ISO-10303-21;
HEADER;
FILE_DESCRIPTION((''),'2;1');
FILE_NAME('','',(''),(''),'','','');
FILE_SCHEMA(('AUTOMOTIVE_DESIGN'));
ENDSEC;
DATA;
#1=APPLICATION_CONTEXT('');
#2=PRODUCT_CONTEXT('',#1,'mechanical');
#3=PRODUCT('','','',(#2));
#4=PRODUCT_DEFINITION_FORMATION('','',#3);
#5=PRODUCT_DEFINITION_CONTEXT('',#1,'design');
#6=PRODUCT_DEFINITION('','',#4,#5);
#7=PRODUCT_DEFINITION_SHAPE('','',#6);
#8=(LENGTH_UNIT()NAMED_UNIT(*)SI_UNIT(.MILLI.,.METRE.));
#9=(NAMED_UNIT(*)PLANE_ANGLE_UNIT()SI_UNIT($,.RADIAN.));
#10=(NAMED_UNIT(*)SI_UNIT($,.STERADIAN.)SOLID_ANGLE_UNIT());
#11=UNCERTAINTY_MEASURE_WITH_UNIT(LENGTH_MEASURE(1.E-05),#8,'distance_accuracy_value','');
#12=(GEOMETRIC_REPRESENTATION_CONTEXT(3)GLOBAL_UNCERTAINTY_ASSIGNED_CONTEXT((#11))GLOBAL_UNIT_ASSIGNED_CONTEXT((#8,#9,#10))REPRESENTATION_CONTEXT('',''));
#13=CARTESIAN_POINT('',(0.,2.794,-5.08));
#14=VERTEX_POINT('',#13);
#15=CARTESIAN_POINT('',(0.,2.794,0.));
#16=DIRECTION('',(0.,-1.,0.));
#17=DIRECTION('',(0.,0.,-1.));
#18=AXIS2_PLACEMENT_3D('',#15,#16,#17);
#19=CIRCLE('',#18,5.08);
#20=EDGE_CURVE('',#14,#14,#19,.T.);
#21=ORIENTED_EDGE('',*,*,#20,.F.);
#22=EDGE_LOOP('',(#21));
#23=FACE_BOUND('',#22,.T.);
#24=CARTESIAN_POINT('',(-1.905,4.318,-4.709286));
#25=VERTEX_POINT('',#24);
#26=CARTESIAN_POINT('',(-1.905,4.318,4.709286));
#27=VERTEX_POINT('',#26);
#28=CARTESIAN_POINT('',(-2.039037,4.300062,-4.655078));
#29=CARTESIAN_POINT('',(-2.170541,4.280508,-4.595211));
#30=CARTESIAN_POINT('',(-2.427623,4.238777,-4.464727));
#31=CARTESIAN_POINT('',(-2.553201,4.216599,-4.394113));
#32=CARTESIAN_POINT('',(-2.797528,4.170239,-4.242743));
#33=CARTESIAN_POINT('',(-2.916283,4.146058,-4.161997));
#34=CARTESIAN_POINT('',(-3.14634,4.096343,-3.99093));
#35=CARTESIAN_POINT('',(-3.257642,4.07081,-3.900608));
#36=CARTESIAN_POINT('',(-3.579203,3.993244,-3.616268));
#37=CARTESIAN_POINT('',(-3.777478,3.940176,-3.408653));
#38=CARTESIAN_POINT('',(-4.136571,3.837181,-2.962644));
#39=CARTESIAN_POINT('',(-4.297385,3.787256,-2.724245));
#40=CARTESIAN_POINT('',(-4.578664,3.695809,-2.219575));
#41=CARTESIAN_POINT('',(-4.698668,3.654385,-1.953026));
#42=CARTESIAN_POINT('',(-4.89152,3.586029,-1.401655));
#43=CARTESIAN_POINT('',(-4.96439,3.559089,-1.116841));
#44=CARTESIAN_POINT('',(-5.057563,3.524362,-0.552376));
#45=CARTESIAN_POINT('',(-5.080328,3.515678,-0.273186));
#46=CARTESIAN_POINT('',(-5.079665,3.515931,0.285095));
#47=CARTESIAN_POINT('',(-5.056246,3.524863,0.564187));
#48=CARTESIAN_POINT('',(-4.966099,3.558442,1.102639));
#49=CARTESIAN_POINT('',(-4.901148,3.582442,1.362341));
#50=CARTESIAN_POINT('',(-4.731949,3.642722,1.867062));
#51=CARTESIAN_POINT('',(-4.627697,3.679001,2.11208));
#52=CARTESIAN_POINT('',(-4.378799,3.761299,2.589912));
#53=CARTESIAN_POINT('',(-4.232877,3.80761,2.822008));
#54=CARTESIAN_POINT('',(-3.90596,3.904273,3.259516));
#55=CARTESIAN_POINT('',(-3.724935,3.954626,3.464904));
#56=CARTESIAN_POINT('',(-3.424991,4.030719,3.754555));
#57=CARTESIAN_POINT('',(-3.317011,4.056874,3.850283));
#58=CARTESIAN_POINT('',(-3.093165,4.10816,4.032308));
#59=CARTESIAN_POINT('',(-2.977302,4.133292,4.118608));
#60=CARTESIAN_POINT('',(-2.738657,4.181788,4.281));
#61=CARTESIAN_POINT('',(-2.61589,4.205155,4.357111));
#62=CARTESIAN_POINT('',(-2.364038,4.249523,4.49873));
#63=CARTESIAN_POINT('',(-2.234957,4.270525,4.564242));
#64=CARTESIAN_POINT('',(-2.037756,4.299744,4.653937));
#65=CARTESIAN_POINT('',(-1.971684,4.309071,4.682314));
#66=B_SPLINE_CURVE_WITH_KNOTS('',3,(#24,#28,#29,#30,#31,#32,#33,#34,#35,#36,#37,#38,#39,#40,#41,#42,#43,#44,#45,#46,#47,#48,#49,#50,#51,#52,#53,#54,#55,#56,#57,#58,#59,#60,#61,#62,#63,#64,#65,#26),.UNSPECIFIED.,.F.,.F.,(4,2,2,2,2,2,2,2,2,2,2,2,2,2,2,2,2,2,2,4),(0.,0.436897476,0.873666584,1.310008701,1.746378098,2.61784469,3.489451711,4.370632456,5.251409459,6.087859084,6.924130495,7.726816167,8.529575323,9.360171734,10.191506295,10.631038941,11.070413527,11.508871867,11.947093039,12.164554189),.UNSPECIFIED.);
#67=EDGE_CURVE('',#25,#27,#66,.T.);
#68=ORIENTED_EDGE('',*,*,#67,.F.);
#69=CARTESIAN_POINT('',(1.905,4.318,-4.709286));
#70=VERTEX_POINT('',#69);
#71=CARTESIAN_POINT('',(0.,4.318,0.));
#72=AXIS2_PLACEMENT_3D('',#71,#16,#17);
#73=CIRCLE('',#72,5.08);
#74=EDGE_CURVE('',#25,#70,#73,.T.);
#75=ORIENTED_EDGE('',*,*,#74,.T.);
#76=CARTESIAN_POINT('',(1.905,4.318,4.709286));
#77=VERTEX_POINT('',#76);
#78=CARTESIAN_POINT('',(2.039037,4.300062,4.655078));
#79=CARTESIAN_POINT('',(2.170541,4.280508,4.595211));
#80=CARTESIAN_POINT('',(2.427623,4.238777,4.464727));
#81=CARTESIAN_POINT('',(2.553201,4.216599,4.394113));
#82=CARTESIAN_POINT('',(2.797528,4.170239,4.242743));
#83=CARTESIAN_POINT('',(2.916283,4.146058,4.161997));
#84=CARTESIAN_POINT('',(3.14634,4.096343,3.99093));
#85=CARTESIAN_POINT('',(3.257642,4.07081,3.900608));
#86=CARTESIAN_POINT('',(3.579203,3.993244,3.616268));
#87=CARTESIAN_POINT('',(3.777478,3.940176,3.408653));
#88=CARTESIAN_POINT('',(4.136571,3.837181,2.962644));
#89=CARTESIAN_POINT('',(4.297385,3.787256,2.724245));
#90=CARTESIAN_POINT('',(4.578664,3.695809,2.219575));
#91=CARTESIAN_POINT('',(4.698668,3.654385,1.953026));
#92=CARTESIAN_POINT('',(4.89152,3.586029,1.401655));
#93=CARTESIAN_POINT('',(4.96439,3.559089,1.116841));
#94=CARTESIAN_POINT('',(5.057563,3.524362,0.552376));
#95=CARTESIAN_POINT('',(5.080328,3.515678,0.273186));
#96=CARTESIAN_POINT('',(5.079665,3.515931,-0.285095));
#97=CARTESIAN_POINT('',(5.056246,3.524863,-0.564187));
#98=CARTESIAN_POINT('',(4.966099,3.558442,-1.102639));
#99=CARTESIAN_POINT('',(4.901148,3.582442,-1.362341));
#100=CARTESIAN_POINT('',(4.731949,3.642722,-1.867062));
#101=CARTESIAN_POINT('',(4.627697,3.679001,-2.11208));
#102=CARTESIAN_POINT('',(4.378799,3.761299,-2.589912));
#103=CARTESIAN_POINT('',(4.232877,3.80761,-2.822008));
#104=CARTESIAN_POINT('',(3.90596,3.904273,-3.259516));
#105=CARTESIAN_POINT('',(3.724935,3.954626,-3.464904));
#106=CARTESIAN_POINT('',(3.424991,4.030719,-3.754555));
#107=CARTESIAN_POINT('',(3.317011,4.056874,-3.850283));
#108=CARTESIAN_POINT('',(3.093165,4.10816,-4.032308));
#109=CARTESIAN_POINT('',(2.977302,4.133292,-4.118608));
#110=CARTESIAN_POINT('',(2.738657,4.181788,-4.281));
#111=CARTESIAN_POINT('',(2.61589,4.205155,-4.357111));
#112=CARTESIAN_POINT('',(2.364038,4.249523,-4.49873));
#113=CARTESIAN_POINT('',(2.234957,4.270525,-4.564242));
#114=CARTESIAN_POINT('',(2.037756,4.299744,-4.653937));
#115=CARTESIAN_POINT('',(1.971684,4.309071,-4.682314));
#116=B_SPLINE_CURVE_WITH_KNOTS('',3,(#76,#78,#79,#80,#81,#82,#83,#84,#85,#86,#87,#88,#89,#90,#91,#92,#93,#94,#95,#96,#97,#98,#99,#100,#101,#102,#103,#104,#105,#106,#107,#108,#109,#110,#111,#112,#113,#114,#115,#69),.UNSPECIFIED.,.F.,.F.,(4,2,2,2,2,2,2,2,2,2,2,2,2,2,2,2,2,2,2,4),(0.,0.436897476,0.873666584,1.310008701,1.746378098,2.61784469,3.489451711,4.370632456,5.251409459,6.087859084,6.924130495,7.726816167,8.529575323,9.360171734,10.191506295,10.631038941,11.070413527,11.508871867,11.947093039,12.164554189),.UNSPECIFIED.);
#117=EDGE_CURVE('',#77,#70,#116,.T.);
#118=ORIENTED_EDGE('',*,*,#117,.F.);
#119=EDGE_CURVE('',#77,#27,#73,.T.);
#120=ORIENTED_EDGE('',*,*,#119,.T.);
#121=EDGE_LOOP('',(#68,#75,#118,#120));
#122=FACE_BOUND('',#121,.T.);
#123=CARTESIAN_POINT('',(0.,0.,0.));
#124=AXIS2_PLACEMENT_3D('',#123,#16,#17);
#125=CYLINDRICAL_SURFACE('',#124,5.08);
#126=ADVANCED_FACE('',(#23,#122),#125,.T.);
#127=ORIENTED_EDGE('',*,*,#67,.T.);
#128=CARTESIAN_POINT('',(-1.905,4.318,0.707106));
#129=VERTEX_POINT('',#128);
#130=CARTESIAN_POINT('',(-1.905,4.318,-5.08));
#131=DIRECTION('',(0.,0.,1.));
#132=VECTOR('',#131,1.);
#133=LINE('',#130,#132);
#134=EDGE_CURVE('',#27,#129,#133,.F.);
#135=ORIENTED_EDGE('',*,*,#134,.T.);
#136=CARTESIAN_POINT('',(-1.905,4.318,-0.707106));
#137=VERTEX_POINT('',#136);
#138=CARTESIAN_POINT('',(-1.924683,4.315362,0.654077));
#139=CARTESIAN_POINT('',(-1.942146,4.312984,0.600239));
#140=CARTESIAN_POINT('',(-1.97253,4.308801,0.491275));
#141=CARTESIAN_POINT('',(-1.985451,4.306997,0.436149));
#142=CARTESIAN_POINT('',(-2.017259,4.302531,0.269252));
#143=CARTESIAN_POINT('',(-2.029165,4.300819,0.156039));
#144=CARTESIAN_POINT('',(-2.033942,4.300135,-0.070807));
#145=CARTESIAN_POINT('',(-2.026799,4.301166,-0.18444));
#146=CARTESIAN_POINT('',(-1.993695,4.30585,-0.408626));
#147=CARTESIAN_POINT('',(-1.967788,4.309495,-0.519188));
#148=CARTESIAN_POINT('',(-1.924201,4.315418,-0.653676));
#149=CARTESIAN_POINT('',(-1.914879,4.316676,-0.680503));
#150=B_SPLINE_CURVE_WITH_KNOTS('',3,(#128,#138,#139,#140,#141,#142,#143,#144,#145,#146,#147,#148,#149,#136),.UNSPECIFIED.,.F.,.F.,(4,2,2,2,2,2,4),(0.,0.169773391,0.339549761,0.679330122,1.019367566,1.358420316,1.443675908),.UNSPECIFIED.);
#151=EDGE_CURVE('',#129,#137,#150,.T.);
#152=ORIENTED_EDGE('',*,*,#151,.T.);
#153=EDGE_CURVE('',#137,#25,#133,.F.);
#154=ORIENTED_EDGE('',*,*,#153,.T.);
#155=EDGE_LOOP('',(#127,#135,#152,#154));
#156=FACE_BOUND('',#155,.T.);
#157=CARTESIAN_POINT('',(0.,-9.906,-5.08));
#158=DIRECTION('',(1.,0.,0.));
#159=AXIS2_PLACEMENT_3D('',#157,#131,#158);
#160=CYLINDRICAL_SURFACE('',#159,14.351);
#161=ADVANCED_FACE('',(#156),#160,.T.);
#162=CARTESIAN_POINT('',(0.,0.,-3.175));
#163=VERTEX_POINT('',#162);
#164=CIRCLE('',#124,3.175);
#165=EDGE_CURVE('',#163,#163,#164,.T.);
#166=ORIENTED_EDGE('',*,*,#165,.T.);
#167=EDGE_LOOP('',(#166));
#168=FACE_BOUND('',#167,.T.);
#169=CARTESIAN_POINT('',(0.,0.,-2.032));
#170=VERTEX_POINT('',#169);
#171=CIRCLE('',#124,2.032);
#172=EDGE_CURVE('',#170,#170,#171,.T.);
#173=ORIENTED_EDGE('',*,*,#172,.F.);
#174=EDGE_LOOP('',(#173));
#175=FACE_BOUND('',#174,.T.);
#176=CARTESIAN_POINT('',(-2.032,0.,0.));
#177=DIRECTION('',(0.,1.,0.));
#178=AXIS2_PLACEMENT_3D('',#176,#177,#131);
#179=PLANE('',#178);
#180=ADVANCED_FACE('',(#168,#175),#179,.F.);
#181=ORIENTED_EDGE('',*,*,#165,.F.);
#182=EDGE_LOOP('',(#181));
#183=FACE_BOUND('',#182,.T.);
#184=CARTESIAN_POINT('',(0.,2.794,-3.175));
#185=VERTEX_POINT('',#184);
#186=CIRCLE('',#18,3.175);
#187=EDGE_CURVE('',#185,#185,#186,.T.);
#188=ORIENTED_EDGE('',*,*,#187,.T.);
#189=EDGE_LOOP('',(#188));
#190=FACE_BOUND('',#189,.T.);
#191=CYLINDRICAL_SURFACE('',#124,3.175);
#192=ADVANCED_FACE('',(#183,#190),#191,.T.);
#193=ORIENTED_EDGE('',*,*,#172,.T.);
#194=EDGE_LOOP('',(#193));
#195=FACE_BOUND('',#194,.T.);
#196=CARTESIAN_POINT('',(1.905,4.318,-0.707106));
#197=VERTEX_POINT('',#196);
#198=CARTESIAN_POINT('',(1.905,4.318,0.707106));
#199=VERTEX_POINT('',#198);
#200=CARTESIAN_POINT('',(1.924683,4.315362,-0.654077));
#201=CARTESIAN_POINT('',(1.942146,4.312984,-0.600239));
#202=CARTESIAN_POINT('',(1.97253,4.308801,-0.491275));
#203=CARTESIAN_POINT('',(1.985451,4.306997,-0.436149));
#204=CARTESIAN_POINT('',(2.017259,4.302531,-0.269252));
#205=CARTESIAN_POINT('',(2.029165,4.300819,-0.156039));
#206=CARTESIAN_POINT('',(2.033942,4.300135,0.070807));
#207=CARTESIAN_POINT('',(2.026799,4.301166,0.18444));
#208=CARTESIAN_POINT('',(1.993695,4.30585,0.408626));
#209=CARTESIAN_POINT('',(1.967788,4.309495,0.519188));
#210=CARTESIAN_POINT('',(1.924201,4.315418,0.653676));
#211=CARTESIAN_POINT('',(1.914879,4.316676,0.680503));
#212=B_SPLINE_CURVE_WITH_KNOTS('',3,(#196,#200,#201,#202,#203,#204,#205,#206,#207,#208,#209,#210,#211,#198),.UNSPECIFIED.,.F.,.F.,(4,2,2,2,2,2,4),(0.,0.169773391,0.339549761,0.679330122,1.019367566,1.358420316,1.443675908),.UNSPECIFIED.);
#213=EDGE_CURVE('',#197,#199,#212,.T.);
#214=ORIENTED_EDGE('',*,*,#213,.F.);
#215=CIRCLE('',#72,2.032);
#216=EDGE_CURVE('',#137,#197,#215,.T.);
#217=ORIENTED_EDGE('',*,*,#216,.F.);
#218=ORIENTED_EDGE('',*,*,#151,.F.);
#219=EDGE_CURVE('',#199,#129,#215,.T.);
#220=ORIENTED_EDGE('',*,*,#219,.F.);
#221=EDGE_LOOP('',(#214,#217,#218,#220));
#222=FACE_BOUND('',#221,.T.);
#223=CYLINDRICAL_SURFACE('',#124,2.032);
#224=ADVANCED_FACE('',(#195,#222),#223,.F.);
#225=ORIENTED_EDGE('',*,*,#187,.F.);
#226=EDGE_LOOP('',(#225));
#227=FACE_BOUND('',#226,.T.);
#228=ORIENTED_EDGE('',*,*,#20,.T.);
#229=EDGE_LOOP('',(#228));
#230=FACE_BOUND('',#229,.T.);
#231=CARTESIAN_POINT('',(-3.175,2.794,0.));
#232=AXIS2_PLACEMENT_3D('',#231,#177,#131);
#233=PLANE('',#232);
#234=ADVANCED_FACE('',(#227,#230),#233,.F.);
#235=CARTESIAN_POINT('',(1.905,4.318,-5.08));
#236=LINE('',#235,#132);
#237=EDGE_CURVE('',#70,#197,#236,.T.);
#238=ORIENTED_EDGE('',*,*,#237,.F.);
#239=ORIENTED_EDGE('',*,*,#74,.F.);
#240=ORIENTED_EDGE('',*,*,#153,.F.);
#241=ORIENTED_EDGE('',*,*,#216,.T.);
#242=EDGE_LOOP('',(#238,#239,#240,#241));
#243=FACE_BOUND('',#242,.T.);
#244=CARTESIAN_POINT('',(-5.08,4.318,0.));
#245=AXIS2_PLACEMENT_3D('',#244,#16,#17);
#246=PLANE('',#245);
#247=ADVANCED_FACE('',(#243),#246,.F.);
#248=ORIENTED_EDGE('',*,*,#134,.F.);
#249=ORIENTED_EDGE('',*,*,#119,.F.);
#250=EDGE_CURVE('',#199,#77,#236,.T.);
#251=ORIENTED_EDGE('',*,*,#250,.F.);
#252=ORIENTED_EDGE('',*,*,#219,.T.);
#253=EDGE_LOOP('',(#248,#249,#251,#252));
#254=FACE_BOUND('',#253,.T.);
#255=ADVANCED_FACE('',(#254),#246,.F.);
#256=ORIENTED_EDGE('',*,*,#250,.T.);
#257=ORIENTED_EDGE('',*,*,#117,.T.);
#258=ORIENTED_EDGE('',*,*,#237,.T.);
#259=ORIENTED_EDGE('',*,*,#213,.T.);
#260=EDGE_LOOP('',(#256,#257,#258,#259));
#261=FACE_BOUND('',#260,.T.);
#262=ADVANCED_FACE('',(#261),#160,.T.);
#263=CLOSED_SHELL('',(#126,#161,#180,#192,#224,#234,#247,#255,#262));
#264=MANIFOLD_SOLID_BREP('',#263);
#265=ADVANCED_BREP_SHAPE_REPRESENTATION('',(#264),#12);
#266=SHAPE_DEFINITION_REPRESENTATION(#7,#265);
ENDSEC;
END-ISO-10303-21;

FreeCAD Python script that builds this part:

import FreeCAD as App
import Part
import Sketcher
Q = App.Units.Quantity


def add_polygon(sketch, points):
    """Adds a closed chain of lines whose ends are joined by coincident constraints."""
    first, n = sketch.GeometryCount, len(points)
    for a, b in zip(points, points[1:] + points[:1]):
        sketch.addGeometry(Part.LineSegment(App.Vector(*a, 0), App.Vector(*b, 0)), False)
    for i in range(n):
        sketch.addConstraint(Sketcher.Constraint("Coincident", first + i, 2, first + (i + 1) % n, 1))

doc = App.newDocument("Part")
params = doc.addObject("Spreadsheet::Sheet", "Params")
for row, (alias, value) in enumerate([
    ("sketch1_width", "0.12 in"),
    ("sketch1_height", "0.17 in"),
    ("sketch1_height2", "0.06 in"),
    ("sketch1_width2", "0.045 in"),
    ("revolution_angle", "360 deg"),
    ("sketch2_diameter", "1.5 in"),
    ("sketch2_diameter2", "1.13 in"),
], start=1):
    params.set(f"A{row}", alias)
    params.set(f"B{row}", "=" + value)
    params.setAlias(f"B{row}", alias)

body = doc.addObject("PartDesign::Body", "Body")

# Sketch on XY plane
sketch1 = doc.addObject("Sketcher::SketchObject", "Sketch")
body.addObject(sketch1)
sketch1.AttachmentSupport = (doc.XY_Plane, [""])
sketch1.MapMode = "FlatFace"
add_polygon(sketch1, [(-3.175, 0), (-2.032, 0), (-2.032, 4.318), (-5.08, 4.318), (-5.08, 2.794), (-3.175, 2.794)])  # lines 0-5
sketch1.addConstraint([
    Sketcher.Constraint("Horizontal", 0),
    Sketcher.Constraint("Vertical", 1),
    Sketcher.Constraint("Horizontal", 2),
    Sketcher.Constraint("Vertical", 3),
    Sketcher.Constraint("Horizontal", 4),
    Sketcher.Constraint("Vertical", 5),
    Sketcher.Constraint("PointOnObject", 0, 2, -1),
    Sketcher.Constraint("DistanceX", 2, 2, 2, 1, Q("0.12 in")),
    Sketcher.Constraint("DistanceY", 1, 1, 1, 2, Q("0.17 in")),
    Sketcher.Constraint("DistanceY", 3, 2, 3, 1, Q("0.06 in")),
    Sketcher.Constraint("DistanceX", 2, 2, -1, 1, Q("0.2 in")),
    Sketcher.Constraint("DistanceX", 0, 1, 0, 2, Q("0.045 in")),
])
sketch1.setExpression("Constraints[13]", "Params.sketch1_width")
sketch1.setExpression("Constraints[14]", "Params.sketch1_height")
sketch1.setExpression("Constraints[15]", "Params.sketch1_height2")
sketch1.setExpression("Constraints[17]", "Params.sketch1_width2")
revolution = doc.addObject("PartDesign::Revolution", "Revolution")
body.addObject(revolution)
revolution.Profile = sketch1
revolution.ReferenceAxis = (sketch1, ["V_Axis"])
revolution.setExpression("Angle", "Params.revolution_angle")

# Sketch on XY plane
sketch2 = doc.addObject("Sketcher::SketchObject", "Sketch001")
body.addObject(sketch2)
sketch2.AttachmentSupport = (doc.XY_Plane, [""])
sketch2.MapMode = "FlatFace"
sketch2.addGeometry([
    Part.Circle(App.Vector(0, -9.906, 0), App.Vector(0, 0, 1), 19.05),
    Part.Circle(App.Vector(0, -9.906, 0), App.Vector(0, 0, 1), 14.351),
], False)
sketch2.addConstraint([
    Sketcher.Constraint("Coincident", 1, 3, 0, 3),
    Sketcher.Constraint("PointOnObject", 0, 3, -2),
    Sketcher.Constraint("Diameter", 0, Q("1.5 in")),
    Sketcher.Constraint("Diameter", 1, Q("1.13 in")),
    Sketcher.Constraint("DistanceY", 0, 3, -1, 1, Q("0.39 in")),
])
sketch2.setExpression("Constraints[2]", "Params.sketch2_diameter")
sketch2.setExpression("Constraints[3]", "Params.sketch2_diameter2")
pocket1 = doc.addObject("PartDesign::Pocket", "Pocket")
body.addObject(pocket1)
pocket1.Profile = sketch2
pocket1.Type = "ThroughAll"
pocket1.Midplane = True

doc.recompute()
